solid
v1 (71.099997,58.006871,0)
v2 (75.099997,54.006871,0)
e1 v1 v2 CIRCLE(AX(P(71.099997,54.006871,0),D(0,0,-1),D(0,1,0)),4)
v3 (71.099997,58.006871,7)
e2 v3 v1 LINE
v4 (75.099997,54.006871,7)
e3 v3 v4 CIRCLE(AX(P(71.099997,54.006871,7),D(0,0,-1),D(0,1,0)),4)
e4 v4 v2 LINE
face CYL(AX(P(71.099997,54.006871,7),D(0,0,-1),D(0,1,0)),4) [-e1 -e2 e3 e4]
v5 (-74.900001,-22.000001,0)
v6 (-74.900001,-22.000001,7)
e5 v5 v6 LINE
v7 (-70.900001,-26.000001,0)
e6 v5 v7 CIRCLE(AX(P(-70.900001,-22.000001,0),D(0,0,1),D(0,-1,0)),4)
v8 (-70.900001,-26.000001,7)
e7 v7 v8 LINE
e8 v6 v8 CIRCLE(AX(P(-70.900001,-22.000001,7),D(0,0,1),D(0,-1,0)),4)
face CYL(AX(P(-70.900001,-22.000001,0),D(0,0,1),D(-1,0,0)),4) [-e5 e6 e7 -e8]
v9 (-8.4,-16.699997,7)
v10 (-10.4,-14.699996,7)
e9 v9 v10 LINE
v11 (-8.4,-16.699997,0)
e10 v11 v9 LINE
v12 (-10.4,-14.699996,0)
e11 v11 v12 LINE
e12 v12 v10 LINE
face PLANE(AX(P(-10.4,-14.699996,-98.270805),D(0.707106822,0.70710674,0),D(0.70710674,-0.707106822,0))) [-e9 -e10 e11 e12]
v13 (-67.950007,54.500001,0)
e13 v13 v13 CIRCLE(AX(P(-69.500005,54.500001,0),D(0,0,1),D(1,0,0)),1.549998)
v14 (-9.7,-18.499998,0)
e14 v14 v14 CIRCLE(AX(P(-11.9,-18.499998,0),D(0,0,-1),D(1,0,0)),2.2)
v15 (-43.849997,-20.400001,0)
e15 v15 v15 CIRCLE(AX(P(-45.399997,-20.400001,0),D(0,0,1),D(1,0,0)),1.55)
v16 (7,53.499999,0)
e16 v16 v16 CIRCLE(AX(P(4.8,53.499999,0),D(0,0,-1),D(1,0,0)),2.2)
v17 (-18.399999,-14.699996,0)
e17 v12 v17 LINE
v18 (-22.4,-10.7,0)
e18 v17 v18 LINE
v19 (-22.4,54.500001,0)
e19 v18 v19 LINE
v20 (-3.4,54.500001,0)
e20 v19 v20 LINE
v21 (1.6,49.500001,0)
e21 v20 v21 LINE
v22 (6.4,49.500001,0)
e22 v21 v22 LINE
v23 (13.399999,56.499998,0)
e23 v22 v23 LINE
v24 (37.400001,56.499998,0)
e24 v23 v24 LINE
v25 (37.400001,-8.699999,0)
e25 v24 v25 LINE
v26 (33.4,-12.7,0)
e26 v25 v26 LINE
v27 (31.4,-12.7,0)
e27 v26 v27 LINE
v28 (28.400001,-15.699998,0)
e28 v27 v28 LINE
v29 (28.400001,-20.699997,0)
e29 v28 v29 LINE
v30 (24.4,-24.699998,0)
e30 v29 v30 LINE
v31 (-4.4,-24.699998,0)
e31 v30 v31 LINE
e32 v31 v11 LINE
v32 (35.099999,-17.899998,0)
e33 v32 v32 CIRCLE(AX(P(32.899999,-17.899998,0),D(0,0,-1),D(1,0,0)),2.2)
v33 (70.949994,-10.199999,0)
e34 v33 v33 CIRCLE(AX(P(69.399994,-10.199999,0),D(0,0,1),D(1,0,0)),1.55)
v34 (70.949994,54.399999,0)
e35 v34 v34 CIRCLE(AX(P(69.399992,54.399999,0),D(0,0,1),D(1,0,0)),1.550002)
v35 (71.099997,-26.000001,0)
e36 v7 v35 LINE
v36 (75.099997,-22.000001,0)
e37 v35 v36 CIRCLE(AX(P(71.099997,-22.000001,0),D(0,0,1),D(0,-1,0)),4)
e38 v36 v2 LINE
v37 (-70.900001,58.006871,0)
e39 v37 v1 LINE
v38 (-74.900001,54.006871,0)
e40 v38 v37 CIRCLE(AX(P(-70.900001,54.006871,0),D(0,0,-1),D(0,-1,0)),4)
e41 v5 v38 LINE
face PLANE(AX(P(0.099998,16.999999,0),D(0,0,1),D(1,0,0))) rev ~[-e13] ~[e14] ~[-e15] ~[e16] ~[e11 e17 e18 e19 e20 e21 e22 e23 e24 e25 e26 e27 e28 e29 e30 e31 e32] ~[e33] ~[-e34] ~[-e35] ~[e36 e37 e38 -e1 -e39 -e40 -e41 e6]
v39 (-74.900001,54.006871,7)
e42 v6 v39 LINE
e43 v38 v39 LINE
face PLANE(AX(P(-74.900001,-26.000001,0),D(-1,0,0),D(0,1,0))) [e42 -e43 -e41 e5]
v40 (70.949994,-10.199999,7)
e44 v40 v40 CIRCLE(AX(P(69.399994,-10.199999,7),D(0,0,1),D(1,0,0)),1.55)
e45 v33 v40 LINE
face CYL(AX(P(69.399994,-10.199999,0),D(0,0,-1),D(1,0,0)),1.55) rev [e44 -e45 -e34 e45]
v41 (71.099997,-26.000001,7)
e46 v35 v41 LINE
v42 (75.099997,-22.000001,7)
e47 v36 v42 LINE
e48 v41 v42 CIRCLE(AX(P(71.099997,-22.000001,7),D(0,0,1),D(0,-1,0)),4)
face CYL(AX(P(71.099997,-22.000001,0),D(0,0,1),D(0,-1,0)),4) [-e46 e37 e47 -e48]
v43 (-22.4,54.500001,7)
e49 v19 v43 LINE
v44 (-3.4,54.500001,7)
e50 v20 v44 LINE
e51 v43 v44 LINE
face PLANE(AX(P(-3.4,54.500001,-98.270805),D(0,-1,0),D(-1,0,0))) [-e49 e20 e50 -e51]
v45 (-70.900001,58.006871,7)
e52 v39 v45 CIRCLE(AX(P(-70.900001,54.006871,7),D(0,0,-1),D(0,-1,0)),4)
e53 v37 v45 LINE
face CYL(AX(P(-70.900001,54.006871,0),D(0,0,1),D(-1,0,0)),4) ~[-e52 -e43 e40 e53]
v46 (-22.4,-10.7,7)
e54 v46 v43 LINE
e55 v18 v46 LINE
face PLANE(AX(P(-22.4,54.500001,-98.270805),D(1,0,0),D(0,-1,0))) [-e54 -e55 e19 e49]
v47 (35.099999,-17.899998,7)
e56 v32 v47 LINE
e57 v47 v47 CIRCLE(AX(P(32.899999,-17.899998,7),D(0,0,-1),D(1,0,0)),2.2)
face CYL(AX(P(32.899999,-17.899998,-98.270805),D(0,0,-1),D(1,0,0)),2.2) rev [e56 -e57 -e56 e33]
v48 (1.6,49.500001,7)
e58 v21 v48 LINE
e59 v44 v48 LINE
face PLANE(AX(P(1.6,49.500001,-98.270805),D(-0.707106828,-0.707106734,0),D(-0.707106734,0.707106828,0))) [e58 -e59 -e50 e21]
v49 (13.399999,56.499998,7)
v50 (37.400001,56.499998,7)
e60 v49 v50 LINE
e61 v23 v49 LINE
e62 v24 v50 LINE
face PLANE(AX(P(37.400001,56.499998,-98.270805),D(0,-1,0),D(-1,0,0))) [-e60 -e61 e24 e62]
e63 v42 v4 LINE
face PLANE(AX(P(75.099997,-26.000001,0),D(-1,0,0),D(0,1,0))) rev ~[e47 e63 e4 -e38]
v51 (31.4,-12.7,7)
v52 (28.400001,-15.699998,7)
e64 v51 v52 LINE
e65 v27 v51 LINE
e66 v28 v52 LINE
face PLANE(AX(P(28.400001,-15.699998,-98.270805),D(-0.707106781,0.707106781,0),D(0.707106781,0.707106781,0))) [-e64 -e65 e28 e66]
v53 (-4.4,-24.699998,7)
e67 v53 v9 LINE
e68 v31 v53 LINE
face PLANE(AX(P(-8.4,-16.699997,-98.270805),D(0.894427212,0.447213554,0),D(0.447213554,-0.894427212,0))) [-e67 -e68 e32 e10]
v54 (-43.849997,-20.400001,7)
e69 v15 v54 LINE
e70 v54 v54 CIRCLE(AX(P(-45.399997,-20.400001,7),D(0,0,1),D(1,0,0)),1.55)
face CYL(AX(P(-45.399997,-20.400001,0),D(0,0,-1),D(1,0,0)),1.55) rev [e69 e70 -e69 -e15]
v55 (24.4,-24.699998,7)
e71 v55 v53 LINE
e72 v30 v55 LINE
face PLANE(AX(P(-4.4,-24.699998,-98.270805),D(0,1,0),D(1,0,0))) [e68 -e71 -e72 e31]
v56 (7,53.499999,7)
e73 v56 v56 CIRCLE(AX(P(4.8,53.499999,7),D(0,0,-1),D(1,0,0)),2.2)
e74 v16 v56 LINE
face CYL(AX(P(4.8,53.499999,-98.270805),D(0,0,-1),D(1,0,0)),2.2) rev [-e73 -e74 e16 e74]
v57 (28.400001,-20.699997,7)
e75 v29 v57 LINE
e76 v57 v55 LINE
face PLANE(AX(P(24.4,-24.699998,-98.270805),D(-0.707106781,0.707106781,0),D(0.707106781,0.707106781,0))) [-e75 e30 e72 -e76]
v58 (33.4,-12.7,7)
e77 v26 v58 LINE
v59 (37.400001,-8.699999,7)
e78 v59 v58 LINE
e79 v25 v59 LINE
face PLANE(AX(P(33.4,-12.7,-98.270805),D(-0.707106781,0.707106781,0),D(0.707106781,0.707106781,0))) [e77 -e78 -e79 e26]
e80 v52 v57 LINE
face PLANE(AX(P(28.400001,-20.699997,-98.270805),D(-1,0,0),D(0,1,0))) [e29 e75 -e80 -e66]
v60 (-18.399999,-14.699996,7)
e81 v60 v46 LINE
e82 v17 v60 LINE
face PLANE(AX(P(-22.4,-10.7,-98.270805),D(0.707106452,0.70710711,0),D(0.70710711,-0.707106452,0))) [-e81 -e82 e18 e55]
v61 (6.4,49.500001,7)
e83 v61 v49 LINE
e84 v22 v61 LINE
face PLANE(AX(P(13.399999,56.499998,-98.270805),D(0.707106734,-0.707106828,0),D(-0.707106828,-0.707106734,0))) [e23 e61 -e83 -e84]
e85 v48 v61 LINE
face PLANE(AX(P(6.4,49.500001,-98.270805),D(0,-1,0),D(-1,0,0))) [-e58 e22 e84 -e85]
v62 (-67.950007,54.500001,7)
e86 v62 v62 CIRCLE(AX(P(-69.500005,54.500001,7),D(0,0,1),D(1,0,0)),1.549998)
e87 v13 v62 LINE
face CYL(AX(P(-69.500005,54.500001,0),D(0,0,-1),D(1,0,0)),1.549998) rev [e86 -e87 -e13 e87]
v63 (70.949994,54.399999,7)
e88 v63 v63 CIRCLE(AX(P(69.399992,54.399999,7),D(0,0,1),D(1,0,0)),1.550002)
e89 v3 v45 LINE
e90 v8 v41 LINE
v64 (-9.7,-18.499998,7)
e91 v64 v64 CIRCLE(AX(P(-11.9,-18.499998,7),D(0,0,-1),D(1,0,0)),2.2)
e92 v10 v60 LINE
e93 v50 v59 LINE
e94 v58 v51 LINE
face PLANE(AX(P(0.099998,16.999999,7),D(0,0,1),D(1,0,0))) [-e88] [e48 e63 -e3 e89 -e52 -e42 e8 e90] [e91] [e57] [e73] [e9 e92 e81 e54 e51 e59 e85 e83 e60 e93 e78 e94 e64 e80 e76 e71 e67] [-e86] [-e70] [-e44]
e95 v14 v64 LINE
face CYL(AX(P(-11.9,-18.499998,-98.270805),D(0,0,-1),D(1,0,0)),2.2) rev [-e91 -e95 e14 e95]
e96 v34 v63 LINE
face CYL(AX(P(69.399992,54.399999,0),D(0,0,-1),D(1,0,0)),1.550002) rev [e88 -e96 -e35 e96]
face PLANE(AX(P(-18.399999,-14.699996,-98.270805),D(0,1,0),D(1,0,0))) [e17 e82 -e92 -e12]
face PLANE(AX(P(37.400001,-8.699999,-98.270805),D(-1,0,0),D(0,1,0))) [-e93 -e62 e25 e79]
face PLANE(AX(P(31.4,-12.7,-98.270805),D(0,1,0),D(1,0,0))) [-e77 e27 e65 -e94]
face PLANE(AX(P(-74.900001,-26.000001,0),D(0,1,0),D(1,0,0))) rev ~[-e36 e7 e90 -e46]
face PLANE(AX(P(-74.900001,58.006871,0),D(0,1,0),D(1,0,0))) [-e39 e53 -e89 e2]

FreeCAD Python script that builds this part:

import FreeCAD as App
import Part
import Sketcher

V = App.Vector
Q = App.Units.Quantity


def edges_at(feature, points):
    """Names of the edges that pass closest to the given points."""
    edges = feature.Shape.Edges
    near = lambda p: min(range(len(edges)), key=lambda i: edges[i].distToShape(Part.Vertex(*p))[0])
    return sorted({f"Edge{near(p) + 1}" for p in points})

doc = App.newDocument("Part")
body = doc.addObject("PartDesign::Body", "Body")

# Sketch on XY plane
sketch1 = body.newObject("Sketcher::SketchObject", "Sketch")
sketch1.AttachmentSupport = (doc.getObject("XY_Plane"), [""])
sketch1.MapMode = "FlatFace"
sketch1.addGeometry(Part.LineSegment(V(-74.9, 60, 0), V(-74.9, -26, 0)), False)
sketch1.addGeometry(Part.LineSegment(V(-74.9, -26, 0), V(75.1, -26, 0)), False)
sketch1.addGeometry(Part.LineSegment(V(75.1, -26, 0), V(75.1, 60, 0)), False)
sketch1.addGeometry(Part.LineSegment(V(75.1, 60, 0), V(-74.9, 60, 0)), False)
sketch1.addGeometry(Part.Circle(V(-45.4, -20.4, 0), V(0, 0, 1), 1.6), False)
sketch1.addGeometry(Part.Circle(V(69.4, -10.2, 0), V(0, 0, 1), 1.6), False)
sketch1.addGeometry(Part.Circle(V(-69.5, 54.5, 0), V(0, 0, 1), 1.5), False)
sketch1.addGeometry(Part.Circle(V(69.4, 54.4, 0), V(0, 0, 1), 1.6), False)
sketch1.addConstraint(Sketcher.Constraint("Coincident", 0, 2, 1, 1))
sketch1.addConstraint(Sketcher.Constraint("Coincident", 1, 2, 2, 1))
sketch1.addConstraint(Sketcher.Constraint("Coincident", 2, 2, 3, 1))
sketch1.addConstraint(Sketcher.Constraint("Coincident", 3, 2, 0, 1))
sketch1.addConstraint(Sketcher.Constraint("Vertical", 0))
sketch1.addConstraint(Sketcher.Constraint("Horizontal", 1))
sketch1.addConstraint(Sketcher.Constraint("Vertical", 2))
sketch1.addConstraint(Sketcher.Constraint("Horizontal", 3))
sketch1.addConstraint(Sketcher.Constraint("Equal", 4, 5))
sketch1.addConstraint(Sketcher.Constraint("Equal", 5, 6))
sketch1.addConstraint(Sketcher.Constraint("Equal", 5, 7))
sketch1.addConstraint(Sketcher.Constraint("Vertical", 5, 3, 7, 3))
sketch1.addConstraint(Sketcher.Constraint("Diameter", 4, 3.1))
sketch1.addConstraint(Sketcher.Constraint("DistanceX", 1, 1, 1, 2, 149.999999))
sketch1.addConstraint(Sketcher.Constraint("DistanceY", 0, 2, 0, 1, 85.999999))
sketch1.addConstraint(Sketcher.Constraint("DistanceY", 0, 2, -1, 1, 26.000001))
sketch1.addConstraint(Sketcher.Constraint("DistanceY", 4, 3, -1, 1, 20.400001))
sketch1.addConstraint(Sketcher.Constraint("DistanceY", 5, 3, -1, 1, 10.199999))
sketch1.addConstraint(Sketcher.Constraint("DistanceY", -1, 1, 6, 3, 54.500001))
sketch1.addConstraint(Sketcher.Constraint("DistanceY", -1, 1, 7, 3, 54.399999))
sketch1.addConstraint(Sketcher.Constraint("DistanceX", 0, 2, -1, 1, 74.900001))
sketch1.addConstraint(Sketcher.Constraint("DistanceX", 6, 3, 5, 3, 138.899999))
sketch1.addConstraint(Sketcher.Constraint("DistanceX", 4, 3, 5, 3, 114.799991))
sketch1.addConstraint(Sketcher.Constraint("DistanceX", 4, 3, -1, 1, 45.399997))
pad1 = body.newObject("PartDesign::Pad", "Pad")
pad1.Profile = sketch1
pad1.Length = 7

# Sketch on XY plane
sketch2 = body.newObject("Sketcher::SketchObject", "Sketch001")
sketch2.AttachmentSupport = (doc.getObject("XY_Plane"), [""])
sketch2.MapMode = "FlatFace"
sketch2.addGeometry(Part.Circle(V(4.8, 53.5, 0), V(0, 0, 1), 2.2), False)
sketch2.addGeometry(Part.Circle(V(32.9, -17.9, 0), V(0, 0, 1), 2.2), False)
sketch2.addGeometry(Part.Circle(V(-11.9, -18.5, 0), V(0, 0, 1), 2.2), False)
sketch2.addGeometry(Part.LineSegment(V(33.4, -12.7, 0), V(37.4, -8.7, 0)), False)
sketch2.addGeometry(Part.LineSegment(V(37.4, -8.7, 0), V(37.4, 56.5, 0)), False)
sketch2.addGeometry(Part.LineSegment(V(37.4, 56.5, 0), V(13.4, 56.5, 0)), False)
sketch2.addGeometry(Part.LineSegment(V(13.4, 56.5, 0), V(6.4, 49.5, 0)), False)
sketch2.addGeometry(Part.LineSegment(V(6.4, 49.5, 0), V(1.6, 49.5, 0)), False)
sketch2.addGeometry(Part.LineSegment(V(1.6, 49.5, 0), V(-3.4, 54.5, 0)), False)
sketch2.addGeometry(Part.LineSegment(V(-3.4, 54.5, 0), V(-22.4, 54.5, 0)), False)
sketch2.addGeometry(Part.LineSegment(V(-22.4, 54.5, 0), V(-22.4, -10.7, 0)), False)
sketch2.addGeometry(Part.LineSegment(V(-22.4, -10.7, 0), V(-18.4, -14.7, 0)), False)
sketch2.addGeometry(Part.LineSegment(V(-18.4, -14.7, 0), V(-10.4, -14.7, 0)), False)
sketch2.addGeometry(Part.LineSegment(V(-10.4, -14.7, 0), V(-8.4, -16.7, 0)), False)
sketch2.addGeometry(Part.LineSegment(V(-8.4, -16.7, 0), V(-4.4, -24.7, 0)), False)
sketch2.addGeometry(Part.LineSegment(V(-4.4, -24.7, 0), V(24.4, -24.7, 0)), False)
sketch2.addGeometry(Part.LineSegment(V(24.4, -24.7, 0), V(28.4, -20.7, 0)), False)
sketch2.addGeometry(Part.LineSegment(V(28.4, -20.7, 0), V(28.4, -15.7, 0)), False)
sketch2.addGeometry(Part.LineSegment(V(28.4, -15.7, 0), V(31.4, -12.7, 0)), False)
sketch2.addGeometry(Part.LineSegment(V(31.4, -12.7, 0), V(33.4, -12.7, 0)), False)
sketch2.addConstraint(Sketcher.Constraint("Coincident", 3, 2, 4, 1))
sketch2.addConstraint(Sketcher.Constraint("Coincident", 4, 2, 5, 1))
sketch2.addConstraint(Sketcher.Constraint("Coincident", 5, 2, 6, 1))
sketch2.addConstraint(Sketcher.Constraint("Coincident", 6, 2, 7, 1))
sketch2.addConstraint(Sketcher.Constraint("Coincident", 7, 2, 8, 1))
sketch2.addConstraint(Sketcher.Constraint("Coincident", 8, 2, 9, 1))
sketch2.addConstraint(Sketcher.Constraint("Coincident", 9, 2, 10, 1))
sketch2.addConstraint(Sketcher.Constraint("Coincident", 10, 2, 11, 1))
sketch2.addConstraint(Sketcher.Constraint("Coincident", 11, 2, 12, 1))
sketch2.addConstraint(Sketcher.Constraint("Coincident", 12, 2, 13, 1))
sketch2.addConstraint(Sketcher.Constraint("Coincident", 13, 2, 14, 1))
sketch2.addConstraint(Sketcher.Constraint("Coincident", 14, 2, 15, 1))
sketch2.addConstraint(Sketcher.Constraint("Coincident", 15, 2, 16, 1))
sketch2.addConstraint(Sketcher.Constraint("Coincident", 16, 2, 17, 1))
sketch2.addConstraint(Sketcher.Constraint("Coincident", 17, 2, 18, 1))
sketch2.addConstraint(Sketcher.Constraint("Coincident", 18, 2, 19, 1))
sketch2.addConstraint(Sketcher.Constraint("Coincident", 19, 2, 3, 1))
sketch2.addConstraint(Sketcher.Constraint("Vertical", 4))
sketch2.addConstraint(Sketcher.Constraint("Horizontal", 5))
sketch2.addConstraint(Sketcher.Constraint("Horizontal", 7))
sketch2.addConstraint(Sketcher.Constraint("Horizontal", 9))
sketch2.addConstraint(Sketcher.Constraint("Vertical", 10))
sketch2.addConstraint(Sketcher.Constraint("Horizontal", 12))
sketch2.addConstraint(Sketcher.Constraint("Horizontal", 15))
sketch2.addConstraint(Sketcher.Constraint("Vertical", 17))
sketch2.addConstraint(Sketcher.Constraint("Horizontal", 19))
sketch2.addConstraint(Sketcher.Constraint("Equal", 0, 1))
sketch2.addConstraint(Sketcher.Constraint("Equal", 1, 2))
sketch2.addConstraint(Sketcher.Constraint("Parallel", 3, 6))
sketch2.addConstraint(Sketcher.Constraint("Perpendicular", 6, 8))
sketch2.addConstraint(Sketcher.Constraint("Parallel", 8, 11))
sketch2.addConstraint(Sketcher.Constraint("Parallel", 11, 13))
sketch2.addConstraint(Sketcher.Constraint("Perpendicular", 13, 16))
sketch2.addConstraint(Sketcher.Constraint("Parallel", 16, 18))
sketch2.addConstraint(Sketcher.Constraint("Equal", 3, 16))
sketch2.addConstraint(Sketcher.Constraint("Diameter", 0, 4.4))
sketch2.addConstraint(Sketcher.Constraint("DistanceX", 9, 2, 9, 1, 19.0))
sketch2.addConstraint(Sketcher.Constraint("DistanceX", 12, 1, 12, 2, 8.0))
sketch2.addConstraint(Sketcher.Constraint("DistanceX", 19, 1, 19, 2, 2.0))
sketch2.addConstraint(Sketcher.Constraint("DistanceY", 17, 1, 17, 2, 4.999999))
sketch2.addConstraint(Sketcher.Constraint("Angle", 3, Q("45 deg")))
sketch2.addConstraint(Sketcher.Constraint("DistanceX", 7, 2, 7, 1, 4.8))
sketch2.addConstraint(Sketcher.Constraint("DistanceX", 15, 1, 15, 2, 28.8))
sketch2.addConstraint(Sketcher.Constraint("DistanceY", 10, 2, 10, 1, 65.200001))
sketch2.addConstraint(Sketcher.Constraint("DistanceY", 0, 3, 4, 2, 2.999999))
sketch2.addConstraint(Sketcher.Constraint("DistanceY", 6, 2, 0, 3, 3.999999))
sketch2.addConstraint(Sketcher.Constraint("DistanceX", 6, 2, 4, 2, 31.0))
sketch2.addConstraint(Sketcher.Constraint("DistanceY", 2, 3, 6, 2, 67.999998))
sketch2.addConstraint(Sketcher.Constraint("DistanceX", 8, 2, 7, 2, 5.0))
sketch2.addConstraint(Sketcher.Constraint("DistanceY", 10, 2, 3, 2, 2.0))
sketch2.addConstraint(Sketcher.Constraint("DistanceX", 10, 2, 11, 2, 4.000001))
sketch2.addConstraint(Sketcher.Constraint("DistanceX", 12, 2, 13, 2, 2.0))
sketch2.addConstraint(Sketcher.Constraint("DistanceX", 13, 2, 14, 2, 4.0))
sketch2.addConstraint(Sketcher.Constraint("DistanceX", 15, 2, 16, 2, 4.000001))
sketch2.addConstraint(Sketcher.Constraint("DistanceX", -1, 1, 0, 3, 4.8))
sketch2.addConstraint(Sketcher.Constraint("DistanceY", -1, 1, 0, 3, 53.499999))
sketch2.addConstraint(Sketcher.Constraint("DistanceX", -1, 1, 1, 3, 32.899999))
sketch2.addConstraint(Sketcher.Constraint("DistanceY", 1, 3, -1, 1, 17.899998))
sketch2.addConstraint(Sketcher.Constraint("DistanceX", 2, 3, -1, 1, 11.9))
sketch2.addConstraint(Sketcher.Constraint("DistanceX", -1, 1, 3, 2, 37.400001))
pocket1 = body.newObject("PartDesign::Pocket", "Pocket")
pocket1.Profile = sketch2
pocket1.Type = "ThroughAll"
pocket1.Midplane = True

# Sketch on XY plane
sketch3 = body.newObject("Sketcher::SketchObject", "Sketch002")
sketch3.AttachmentSupport = (doc.getObject("XY_Plane"), [""])
sketch3.MapMode = "FlatFace"
sketch3.addGeometry(Part.LineSegment(V(-75, 124, 0), V(-75, 58, 0)), False)
sketch3.addGeometry(Part.LineSegment(V(-75, 58, 0), V(91, 58, 0)), False)
sketch3.addGeometry(Part.LineSegment(V(91, 58, 0), V(91, 124, 0)), False)
sketch3.addGeometry(Part.LineSegment(V(91, 124, 0), V(-75, 124, 0)), False)
sketch3.addConstraint(Sketcher.Constraint("Coincident", 0, 2, 1, 1))
sketch3.addConstraint(Sketcher.Constraint("Coincident", 1, 2, 2, 1))
sketch3.addConstraint(Sketcher.Constraint("Coincident", 2, 2, 3, 1))
sketch3.addConstraint(Sketcher.Constraint("Coincident", 3, 2, 0, 1))
sketch3.addConstraint(Sketcher.Constraint("Vertical", 0))
sketch3.addConstraint(Sketcher.Constraint("Horizontal", 1))
sketch3.addConstraint(Sketcher.Constraint("Vertical", 2))
sketch3.addConstraint(Sketcher.Constraint("Horizontal", 3))
sketch3.addConstraint(Sketcher.Constraint("DistanceX", 0, 2, -1, 1, 74.900001))
sketch3.addConstraint(Sketcher.Constraint("DistanceX", 1, 1, 1, 2, 166.207429))
sketch3.addConstraint(Sketcher.Constraint("DistanceY", 0, 2, 0, 1, 65.702519))
sketch3.addConstraint(Sketcher.Constraint("DistanceY", -1, 1, 0, 2, 58.006871))
pocket2 = body.newObject("PartDesign::Pocket", "Pocket001")
pocket2.Profile = sketch3
pocket2.Type = "ThroughAll"
pocket2.Reversed = True
doc.recompute()

fillet = body.newObject("PartDesign::Fillet", "Fillet")
fillet.Base = (pocket2, edges_at(pocket2, [
    (75.1, 58.007, 3.5),
    (-74.9, 58.007, 3.5),
    (75.1, -26, 3.5),
    (-74.9, -26, 3.5),
]))
fillet.Radius = 4

doc.recompute()
